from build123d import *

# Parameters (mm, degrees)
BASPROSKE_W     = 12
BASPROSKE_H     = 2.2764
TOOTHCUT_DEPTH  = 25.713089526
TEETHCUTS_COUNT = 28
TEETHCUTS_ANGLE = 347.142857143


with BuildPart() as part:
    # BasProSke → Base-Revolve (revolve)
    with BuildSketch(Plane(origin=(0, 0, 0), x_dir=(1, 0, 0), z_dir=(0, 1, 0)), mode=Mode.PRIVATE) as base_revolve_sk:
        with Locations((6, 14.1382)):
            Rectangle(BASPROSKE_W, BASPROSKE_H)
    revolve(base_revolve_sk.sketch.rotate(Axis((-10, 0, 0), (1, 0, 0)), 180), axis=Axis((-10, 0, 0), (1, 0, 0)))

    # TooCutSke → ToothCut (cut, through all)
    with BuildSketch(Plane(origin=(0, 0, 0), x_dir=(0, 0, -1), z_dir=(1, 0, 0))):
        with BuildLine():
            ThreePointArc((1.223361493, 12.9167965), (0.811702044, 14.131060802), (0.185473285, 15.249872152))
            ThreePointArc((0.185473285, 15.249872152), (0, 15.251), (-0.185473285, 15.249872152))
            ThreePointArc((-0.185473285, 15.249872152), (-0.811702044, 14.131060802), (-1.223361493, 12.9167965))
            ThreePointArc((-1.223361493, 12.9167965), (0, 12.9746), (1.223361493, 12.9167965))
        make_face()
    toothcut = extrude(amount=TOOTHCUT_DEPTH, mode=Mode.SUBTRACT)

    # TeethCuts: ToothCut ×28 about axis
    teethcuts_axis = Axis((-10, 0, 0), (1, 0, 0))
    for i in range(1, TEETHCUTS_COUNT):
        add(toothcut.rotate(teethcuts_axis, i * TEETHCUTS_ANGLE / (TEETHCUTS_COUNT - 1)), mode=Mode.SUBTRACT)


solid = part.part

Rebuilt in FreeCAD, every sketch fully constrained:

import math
import FreeCAD as App
import Part
import Sketcher
from FreeCAD import Vector
Q = App.Units.Quantity


def add_polygon(sketch, points):
    """Adds a closed chain of lines whose ends are joined by coincident constraints."""
    first, n = sketch.GeometryCount, len(points)
    for a, b in zip(points, points[1:] + points[:1]):
        sketch.addGeometry(Part.LineSegment(App.Vector(*a, 0), App.Vector(*b, 0)), False)
    for i in range(n):
        sketch.addConstraint(Sketcher.Constraint("Coincident", first + i, 2, first + (i + 1) % n, 1))

doc = App.newDocument("Part")
body = doc.addObject("PartDesign::Body", "Body")

sketch1 = doc.addObject("Sketcher::SketchObject", "Sketch")
body.addObject(sketch1)
sketch1.AttachmentSupport = (doc.XZ_Plane, [""])
sketch1.MapMode = "FlatFace"
add_polygon(sketch1, [(0, -15.3), (0, -13), (12, -13), (12, -15.3)])
sketch1.addConstraint(Sketcher.Constraint("Vertical", 0))
sketch1.addConstraint(Sketcher.Constraint("Horizontal", 1))
sketch1.addConstraint(Sketcher.Constraint("Vertical", 2))
sketch1.addConstraint(Sketcher.Constraint("Horizontal", 3))
sketch1.addConstraint(Sketcher.Constraint("PointOnObject", 0, 2, -2))
sketch1.addConstraint(Sketcher.Constraint("DistanceX", 1, 1, 1, 2, Q("12 mm")))
sketch1.addConstraint(Sketcher.Constraint("DistanceY", 0, 2, -1, 1, Q("13 mm")))
sketch1.addConstraint(Sketcher.Constraint("DistanceY", 0, 1, 0, 2, Q("2.2764 mm")))
revolution = doc.addObject("PartDesign::Revolution", "Revolution")
body.addObject(revolution)
revolution.Profile = sketch1
revolution.ReferenceAxis = (sketch1, ["H_Axis"])
revolution.Angle = 360

sketch2 = doc.addObject("Sketcher::SketchObject", "Sketch001")
body.addObject(sketch2)
sketch2.AttachmentSupport = (doc.YZ_Plane, [""])
sketch2.MapMode = "FlatFace"
sketch2.addGeometry(Part.ArcOfCircle(Part.Circle(Vector(11.29, 5.58, 0), Vector(0, 0, 1), 7), math.radians(-77), math.radians(-56)), False)
sketch2.addGeometry(Part.ArcOfCircle(Part.Circle(Vector(0, 0, 0), Vector(0, 0, 1), 15.25), math.radians(-0.7), math.radians(0.7)), False)
sketch2.addGeometry(Part.ArcOfCircle(Part.Circle(Vector(11.29, -5.58, 0), Vector(0, 0, 1), 7), math.radians(56), math.radians(77)), False)
sketch2.addGeometry(Part.ArcOfCircle(Part.Circle(Vector(0, 0, 0), Vector(0, 0, 1), 12.97), math.radians(-5.41), math.radians(5.41)), False)
sketch2.addConstraint(Sketcher.Constraint("Coincident", 0, 2, 1, 1))
sketch2.addConstraint(Sketcher.Constraint("Coincident", 1, 2, 2, 1))
sketch2.addConstraint(Sketcher.Constraint("Coincident", 2, 2, 3, 2))
sketch2.addConstraint(Sketcher.Constraint("Coincident", 3, 1, 0, 1))
sketch2.addConstraint(Sketcher.Constraint("Coincident", 1, 3, -1, 1))
sketch2.addConstraint(Sketcher.Constraint("Coincident", 3, 3, -1, 1))
sketch2.addConstraint(Sketcher.Constraint("Equal", 0, 2))
sketch2.addConstraint(Sketcher.Constraint("Symmetric", 0, 3, 2, 3, -1))
sketch2.addConstraint(Sketcher.Constraint("Radius", 0, Q("7 mm")))
sketch2.addConstraint(Sketcher.Constraint("Radius", 3, Q("12.9746 mm")))
sketch2.addConstraint(Sketcher.Constraint("Radius", 1, Q("15.250996 mm")))
sketch2.addConstraint(Sketcher.Constraint("DistanceX", -1, 1, 0, 3, Q("11.285881 mm")))
sketch2.addConstraint(Sketcher.Constraint("DistanceY", -1, 1, 2, 2, Q("1.223361 mm")))
pocket1 = doc.addObject("PartDesign::Pocket", "Pocket")
body.addObject(pocket1)
pocket1.Profile = sketch2
pocket1.Type = "ThroughAll"
pocket1.Reversed = True
doc.recompute()

polarpattern = doc.addObject("PartDesign::PolarPattern", "PolarPattern")
body.addObject(polarpattern)
polarpattern.Originals = [pocket1]
polarpattern.Axis = (doc.X_Axis, [""])
polarpattern.Angle = 360
polarpattern.Occurrences = 28
body.Tip = polarpattern

doc.recompute()
